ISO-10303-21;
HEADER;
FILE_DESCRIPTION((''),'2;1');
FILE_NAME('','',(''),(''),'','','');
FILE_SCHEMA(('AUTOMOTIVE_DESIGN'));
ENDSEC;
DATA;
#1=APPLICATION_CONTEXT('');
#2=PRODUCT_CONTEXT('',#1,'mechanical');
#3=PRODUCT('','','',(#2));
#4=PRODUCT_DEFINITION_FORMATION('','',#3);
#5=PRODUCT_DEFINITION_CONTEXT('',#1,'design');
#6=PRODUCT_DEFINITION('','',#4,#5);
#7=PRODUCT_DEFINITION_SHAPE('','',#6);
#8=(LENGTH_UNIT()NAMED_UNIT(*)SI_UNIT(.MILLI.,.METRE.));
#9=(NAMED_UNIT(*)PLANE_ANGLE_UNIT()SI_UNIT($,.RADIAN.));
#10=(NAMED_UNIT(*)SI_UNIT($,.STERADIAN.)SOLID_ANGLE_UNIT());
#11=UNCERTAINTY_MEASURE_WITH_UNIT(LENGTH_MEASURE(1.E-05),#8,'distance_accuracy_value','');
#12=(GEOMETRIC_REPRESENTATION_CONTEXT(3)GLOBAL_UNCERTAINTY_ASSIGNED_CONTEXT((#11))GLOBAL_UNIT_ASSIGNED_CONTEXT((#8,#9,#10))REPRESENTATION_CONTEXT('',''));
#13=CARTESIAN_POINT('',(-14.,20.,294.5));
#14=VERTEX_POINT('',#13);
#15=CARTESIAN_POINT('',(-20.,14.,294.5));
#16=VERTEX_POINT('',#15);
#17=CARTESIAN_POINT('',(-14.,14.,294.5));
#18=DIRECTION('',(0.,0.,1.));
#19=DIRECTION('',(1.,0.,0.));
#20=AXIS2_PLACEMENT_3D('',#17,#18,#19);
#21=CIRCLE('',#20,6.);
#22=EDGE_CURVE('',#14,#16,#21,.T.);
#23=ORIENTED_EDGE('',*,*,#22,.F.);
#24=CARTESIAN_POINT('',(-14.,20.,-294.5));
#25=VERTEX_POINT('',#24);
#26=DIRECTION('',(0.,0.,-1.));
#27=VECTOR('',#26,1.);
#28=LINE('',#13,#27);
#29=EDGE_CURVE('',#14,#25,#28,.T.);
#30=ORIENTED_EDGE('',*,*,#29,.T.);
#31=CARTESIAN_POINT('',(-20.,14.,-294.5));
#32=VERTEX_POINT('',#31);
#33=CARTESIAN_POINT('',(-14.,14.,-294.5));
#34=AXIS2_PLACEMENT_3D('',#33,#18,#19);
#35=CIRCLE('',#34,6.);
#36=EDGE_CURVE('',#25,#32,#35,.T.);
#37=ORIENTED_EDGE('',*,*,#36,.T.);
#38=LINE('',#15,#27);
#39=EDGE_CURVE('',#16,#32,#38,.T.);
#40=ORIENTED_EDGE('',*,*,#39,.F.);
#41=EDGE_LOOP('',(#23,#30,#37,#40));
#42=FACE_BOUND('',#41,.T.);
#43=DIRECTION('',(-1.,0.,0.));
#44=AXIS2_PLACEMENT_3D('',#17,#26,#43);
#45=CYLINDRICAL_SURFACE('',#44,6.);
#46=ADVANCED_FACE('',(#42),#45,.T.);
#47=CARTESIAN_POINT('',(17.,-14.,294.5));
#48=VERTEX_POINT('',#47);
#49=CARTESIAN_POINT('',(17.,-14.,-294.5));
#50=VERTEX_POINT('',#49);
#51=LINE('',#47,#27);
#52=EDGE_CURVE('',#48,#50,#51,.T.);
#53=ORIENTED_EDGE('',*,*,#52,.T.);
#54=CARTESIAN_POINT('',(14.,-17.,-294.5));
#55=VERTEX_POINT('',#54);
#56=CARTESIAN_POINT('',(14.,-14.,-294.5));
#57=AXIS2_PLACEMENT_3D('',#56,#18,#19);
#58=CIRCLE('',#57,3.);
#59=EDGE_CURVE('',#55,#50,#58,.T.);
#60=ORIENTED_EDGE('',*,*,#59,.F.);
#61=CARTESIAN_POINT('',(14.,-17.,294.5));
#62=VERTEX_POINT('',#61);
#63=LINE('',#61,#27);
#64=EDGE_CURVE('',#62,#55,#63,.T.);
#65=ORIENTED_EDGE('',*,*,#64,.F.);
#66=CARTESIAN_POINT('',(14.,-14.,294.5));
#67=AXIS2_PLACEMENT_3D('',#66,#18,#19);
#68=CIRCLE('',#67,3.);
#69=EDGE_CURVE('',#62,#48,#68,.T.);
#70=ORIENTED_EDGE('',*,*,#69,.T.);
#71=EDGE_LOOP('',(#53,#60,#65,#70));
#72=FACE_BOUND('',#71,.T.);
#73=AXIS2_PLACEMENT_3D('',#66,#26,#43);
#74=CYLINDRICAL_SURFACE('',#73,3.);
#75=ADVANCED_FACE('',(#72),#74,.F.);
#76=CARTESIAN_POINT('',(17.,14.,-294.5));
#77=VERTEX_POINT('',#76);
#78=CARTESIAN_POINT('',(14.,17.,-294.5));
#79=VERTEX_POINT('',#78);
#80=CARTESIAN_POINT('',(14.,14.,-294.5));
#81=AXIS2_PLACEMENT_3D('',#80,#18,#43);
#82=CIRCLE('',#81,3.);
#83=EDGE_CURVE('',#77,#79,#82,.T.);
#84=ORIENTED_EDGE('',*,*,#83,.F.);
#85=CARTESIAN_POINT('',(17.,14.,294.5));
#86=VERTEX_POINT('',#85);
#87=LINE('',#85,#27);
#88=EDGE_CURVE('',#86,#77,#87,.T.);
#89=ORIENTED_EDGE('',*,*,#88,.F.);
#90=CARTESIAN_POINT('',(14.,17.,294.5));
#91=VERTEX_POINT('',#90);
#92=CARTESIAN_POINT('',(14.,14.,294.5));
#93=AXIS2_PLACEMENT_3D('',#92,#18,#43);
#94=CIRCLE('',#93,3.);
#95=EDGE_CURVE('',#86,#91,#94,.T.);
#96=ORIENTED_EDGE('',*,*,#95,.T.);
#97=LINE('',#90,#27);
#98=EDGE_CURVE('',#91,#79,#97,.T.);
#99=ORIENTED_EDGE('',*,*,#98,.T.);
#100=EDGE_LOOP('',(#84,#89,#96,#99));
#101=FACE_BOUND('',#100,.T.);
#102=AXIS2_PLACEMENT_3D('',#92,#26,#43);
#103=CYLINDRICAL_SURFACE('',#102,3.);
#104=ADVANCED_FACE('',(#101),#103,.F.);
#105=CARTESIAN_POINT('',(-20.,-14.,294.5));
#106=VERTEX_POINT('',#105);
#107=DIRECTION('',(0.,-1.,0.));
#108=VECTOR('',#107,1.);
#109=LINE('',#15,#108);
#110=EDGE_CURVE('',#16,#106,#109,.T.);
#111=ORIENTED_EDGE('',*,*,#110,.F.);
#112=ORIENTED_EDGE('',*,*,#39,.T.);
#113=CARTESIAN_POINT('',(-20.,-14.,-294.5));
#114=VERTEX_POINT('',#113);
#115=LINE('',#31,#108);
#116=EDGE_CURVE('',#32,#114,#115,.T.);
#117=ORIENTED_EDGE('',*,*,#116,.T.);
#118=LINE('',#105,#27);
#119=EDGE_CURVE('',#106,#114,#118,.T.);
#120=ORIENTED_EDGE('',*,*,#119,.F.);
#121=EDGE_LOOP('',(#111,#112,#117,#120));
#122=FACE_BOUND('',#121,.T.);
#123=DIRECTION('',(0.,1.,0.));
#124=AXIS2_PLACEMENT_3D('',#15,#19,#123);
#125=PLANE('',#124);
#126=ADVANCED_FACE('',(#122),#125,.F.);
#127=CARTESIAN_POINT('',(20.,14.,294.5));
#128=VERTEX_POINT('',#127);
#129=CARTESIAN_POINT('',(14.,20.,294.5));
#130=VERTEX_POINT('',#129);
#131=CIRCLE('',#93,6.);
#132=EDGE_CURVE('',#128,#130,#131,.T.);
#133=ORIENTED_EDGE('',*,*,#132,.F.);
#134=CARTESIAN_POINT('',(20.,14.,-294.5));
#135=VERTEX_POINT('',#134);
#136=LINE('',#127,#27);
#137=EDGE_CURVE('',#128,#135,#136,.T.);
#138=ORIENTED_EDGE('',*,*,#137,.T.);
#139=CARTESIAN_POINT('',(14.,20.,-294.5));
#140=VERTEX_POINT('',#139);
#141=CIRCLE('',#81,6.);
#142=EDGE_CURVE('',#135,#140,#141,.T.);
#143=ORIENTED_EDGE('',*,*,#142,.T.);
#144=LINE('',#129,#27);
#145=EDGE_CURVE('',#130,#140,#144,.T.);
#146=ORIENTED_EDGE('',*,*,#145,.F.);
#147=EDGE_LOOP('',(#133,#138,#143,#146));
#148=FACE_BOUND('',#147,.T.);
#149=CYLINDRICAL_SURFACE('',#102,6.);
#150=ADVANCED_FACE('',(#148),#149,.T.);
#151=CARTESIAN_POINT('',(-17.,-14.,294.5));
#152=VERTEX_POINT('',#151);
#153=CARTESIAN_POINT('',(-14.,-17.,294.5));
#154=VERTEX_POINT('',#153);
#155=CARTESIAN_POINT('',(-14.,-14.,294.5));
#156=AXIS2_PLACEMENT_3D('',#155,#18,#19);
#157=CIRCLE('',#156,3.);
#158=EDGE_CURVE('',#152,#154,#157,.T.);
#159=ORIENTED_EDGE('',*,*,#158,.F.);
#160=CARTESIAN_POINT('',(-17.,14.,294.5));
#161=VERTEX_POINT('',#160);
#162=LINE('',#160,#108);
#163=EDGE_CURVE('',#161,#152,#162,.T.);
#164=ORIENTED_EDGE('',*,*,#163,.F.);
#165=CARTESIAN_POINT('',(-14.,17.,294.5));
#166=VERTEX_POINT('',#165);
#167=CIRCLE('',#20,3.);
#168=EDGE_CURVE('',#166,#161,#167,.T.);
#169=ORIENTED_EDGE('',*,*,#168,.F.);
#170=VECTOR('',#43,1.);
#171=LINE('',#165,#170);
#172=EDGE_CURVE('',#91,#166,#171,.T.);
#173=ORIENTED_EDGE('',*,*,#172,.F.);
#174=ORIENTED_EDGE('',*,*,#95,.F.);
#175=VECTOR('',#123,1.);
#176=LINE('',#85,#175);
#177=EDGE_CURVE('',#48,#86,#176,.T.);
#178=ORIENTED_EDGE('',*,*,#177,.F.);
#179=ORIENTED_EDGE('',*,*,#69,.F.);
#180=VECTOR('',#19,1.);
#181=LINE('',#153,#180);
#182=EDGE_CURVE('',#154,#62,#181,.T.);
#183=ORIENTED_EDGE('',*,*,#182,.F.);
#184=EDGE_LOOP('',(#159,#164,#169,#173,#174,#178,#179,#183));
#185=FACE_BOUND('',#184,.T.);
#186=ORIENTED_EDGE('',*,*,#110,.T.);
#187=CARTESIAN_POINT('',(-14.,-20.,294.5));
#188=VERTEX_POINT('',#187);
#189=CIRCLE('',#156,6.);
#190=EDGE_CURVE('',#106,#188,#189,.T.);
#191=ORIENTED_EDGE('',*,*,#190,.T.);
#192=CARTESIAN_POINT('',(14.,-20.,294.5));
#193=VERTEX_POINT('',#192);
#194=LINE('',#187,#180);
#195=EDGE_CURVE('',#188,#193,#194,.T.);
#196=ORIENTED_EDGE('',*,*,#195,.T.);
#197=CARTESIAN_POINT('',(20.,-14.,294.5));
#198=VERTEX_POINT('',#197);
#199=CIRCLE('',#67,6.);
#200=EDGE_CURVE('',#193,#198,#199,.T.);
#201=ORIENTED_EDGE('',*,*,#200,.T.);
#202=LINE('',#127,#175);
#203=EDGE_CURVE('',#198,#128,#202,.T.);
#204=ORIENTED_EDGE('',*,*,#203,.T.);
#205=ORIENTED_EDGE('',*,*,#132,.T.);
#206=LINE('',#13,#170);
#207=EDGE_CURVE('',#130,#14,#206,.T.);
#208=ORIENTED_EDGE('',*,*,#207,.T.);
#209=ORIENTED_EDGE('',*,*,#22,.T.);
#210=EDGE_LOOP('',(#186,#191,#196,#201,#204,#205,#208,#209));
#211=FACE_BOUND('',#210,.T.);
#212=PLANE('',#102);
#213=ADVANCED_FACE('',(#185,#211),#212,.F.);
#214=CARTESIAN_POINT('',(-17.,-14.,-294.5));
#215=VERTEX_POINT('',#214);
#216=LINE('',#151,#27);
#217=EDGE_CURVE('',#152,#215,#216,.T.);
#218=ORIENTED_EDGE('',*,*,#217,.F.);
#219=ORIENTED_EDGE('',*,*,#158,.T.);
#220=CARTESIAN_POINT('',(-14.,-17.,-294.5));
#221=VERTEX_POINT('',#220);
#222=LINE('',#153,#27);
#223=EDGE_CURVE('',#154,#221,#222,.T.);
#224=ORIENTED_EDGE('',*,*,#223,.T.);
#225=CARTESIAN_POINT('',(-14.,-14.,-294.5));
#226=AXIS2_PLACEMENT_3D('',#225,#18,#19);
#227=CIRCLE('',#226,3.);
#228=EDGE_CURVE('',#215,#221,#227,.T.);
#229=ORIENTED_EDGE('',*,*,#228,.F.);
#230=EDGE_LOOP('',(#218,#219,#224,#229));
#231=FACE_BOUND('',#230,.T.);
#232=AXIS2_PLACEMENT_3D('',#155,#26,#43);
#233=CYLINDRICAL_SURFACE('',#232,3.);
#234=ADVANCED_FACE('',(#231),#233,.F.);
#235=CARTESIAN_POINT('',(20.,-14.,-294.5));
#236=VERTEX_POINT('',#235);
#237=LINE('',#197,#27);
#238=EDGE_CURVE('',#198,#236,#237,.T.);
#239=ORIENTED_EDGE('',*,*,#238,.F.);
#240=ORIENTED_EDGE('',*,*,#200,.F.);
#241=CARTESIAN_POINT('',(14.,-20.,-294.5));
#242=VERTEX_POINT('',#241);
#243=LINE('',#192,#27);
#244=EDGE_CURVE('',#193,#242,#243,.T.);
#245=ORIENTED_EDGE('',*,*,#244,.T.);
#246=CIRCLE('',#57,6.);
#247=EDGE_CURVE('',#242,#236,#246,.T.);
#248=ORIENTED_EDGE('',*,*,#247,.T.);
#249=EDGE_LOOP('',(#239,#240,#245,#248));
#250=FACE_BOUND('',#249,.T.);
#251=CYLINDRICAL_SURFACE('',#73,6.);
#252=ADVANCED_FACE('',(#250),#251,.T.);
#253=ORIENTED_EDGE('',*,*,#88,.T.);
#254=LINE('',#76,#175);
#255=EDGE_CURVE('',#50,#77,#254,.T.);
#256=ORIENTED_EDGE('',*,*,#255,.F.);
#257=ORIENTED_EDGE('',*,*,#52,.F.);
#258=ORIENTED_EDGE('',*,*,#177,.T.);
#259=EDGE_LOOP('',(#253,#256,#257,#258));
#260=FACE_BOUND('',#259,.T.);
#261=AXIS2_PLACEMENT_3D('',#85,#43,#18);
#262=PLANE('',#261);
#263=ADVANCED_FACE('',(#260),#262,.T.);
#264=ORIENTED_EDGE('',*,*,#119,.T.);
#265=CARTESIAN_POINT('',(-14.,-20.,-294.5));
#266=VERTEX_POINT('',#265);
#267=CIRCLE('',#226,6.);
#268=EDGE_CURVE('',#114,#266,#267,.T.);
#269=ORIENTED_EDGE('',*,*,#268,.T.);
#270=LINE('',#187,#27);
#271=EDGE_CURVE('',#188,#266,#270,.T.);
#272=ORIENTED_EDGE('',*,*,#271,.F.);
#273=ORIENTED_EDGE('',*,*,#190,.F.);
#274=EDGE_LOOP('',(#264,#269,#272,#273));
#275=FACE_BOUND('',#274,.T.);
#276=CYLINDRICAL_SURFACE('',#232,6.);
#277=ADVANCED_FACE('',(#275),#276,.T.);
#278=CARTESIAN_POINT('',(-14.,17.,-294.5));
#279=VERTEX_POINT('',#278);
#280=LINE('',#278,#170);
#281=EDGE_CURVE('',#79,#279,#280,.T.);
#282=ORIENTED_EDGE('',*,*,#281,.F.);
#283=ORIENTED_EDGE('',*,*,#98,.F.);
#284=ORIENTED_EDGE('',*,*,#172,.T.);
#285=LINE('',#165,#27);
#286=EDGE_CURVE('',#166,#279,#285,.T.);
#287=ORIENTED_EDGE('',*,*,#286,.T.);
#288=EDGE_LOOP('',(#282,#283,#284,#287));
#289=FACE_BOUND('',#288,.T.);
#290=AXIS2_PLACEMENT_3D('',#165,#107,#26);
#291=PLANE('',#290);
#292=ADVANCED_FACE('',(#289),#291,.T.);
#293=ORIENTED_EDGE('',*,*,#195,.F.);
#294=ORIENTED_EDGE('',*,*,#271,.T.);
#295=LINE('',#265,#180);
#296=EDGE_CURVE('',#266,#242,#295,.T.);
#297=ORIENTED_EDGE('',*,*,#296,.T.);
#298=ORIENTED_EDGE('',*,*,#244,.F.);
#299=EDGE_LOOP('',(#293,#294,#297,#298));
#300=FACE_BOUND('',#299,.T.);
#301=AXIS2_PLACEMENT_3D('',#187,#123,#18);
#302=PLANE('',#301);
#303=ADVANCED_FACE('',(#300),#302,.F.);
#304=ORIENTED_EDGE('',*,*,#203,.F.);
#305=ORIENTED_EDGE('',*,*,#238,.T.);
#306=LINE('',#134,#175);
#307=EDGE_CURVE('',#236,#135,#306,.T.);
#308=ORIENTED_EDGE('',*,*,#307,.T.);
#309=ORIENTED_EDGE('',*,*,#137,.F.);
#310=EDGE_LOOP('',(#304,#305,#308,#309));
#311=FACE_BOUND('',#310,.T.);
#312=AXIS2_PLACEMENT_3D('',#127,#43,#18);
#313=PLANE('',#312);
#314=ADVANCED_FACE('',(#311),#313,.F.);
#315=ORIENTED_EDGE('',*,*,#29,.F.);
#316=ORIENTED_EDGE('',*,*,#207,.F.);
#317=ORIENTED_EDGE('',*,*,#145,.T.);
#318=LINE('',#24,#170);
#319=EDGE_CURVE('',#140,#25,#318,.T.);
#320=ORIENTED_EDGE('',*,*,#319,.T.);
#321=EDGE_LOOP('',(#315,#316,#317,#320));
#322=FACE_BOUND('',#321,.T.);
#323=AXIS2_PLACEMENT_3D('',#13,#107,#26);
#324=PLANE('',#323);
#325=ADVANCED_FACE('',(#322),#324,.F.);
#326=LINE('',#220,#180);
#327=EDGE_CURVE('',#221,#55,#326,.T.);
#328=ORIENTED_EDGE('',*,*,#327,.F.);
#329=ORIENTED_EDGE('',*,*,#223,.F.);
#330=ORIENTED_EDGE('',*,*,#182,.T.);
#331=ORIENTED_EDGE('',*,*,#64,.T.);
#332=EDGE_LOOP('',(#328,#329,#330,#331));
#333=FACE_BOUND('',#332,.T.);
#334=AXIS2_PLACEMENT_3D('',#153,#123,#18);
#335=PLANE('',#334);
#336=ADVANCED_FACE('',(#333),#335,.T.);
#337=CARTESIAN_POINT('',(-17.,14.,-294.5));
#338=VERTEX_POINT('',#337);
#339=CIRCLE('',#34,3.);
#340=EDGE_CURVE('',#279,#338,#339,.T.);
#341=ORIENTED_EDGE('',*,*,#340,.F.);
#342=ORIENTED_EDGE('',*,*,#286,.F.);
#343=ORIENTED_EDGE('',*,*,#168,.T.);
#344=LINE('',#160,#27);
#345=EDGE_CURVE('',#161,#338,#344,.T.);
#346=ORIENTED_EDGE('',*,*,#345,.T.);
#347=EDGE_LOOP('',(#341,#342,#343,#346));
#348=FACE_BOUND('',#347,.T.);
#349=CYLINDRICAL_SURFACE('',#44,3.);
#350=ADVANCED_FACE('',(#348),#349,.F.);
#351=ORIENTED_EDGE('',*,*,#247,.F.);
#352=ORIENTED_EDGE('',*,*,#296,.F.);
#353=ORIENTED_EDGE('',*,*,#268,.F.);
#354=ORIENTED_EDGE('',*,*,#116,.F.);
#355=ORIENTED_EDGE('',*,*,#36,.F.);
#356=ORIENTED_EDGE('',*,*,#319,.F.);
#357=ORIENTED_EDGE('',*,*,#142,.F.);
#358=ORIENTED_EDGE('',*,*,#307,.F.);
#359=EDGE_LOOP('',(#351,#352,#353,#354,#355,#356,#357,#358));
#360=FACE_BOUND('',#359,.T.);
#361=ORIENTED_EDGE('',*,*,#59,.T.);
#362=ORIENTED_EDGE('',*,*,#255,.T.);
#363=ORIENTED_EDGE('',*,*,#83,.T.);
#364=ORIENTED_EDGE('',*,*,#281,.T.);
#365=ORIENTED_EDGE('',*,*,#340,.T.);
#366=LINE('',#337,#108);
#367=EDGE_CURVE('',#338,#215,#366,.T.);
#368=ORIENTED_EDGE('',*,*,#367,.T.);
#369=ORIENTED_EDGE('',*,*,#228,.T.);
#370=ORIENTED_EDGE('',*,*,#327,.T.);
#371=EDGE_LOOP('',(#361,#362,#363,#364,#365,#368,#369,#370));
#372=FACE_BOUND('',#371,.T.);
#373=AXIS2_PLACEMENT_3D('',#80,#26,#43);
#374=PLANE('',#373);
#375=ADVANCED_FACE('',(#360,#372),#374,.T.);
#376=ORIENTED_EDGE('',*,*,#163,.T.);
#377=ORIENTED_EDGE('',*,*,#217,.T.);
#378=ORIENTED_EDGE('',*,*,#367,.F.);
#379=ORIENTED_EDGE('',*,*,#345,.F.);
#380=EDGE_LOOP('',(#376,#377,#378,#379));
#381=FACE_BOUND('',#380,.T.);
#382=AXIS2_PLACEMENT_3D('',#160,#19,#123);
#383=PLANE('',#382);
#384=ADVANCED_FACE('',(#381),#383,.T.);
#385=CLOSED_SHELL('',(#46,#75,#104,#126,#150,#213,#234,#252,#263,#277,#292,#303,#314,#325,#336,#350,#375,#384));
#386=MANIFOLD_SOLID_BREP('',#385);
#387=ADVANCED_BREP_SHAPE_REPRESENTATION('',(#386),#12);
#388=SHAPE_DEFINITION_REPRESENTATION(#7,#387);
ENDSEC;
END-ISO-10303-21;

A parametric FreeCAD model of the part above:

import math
import FreeCAD as App
import Part
import Sketcher

V = App.Vector
Q = App.Units.Quantity

doc = App.newDocument("Part")
params = doc.addObject("Spreadsheet::Sheet", "Params")
for row, (alias, value) in enumerate([
    ("sketch1_radius", "6 mm"),
    ("sketch1_radius2", "3 mm"),
    ("sketch1_width", "28 mm"),
    ("pad1_length", "589 mm"),
], start=1):
    params.set(f"A{row}", alias)
    params.set(f"B{row}", "=" + value)
    params.setAlias(f"B{row}", alias)

body = doc.addObject("PartDesign::Body", "Body")

sketch1 = body.newObject("Sketcher::SketchObject", "Sketch")
sketch1.AttachmentSupport = (doc.getObject("XY_Plane"), [""])
sketch1.MapMode = "FlatFace"
sketch1.addGeometry([
    Part.LineSegment(V(14, 20, 0), V(-14, 20, 0)),
    Part.ArcOfCircle(Part.Circle(V(-14, 14, 0), V(0, 0, 1), 6), math.radians(90), math.radians(180)),
    Part.LineSegment(V(-20, 14, 0), V(-20, -14, 0)),
    Part.ArcOfCircle(Part.Circle(V(-14, -14, 0), V(0, 0, 1), 6), math.radians(180), math.radians(270)),
    Part.LineSegment(V(-14, -20, 0), V(14, -20, 0)),
    Part.ArcOfCircle(Part.Circle(V(14, -14, 0), V(0, 0, 1), 6), math.radians(-90), math.radians(0)),
    Part.LineSegment(V(20, -14, 0), V(20, 14, 0)),
    Part.ArcOfCircle(Part.Circle(V(14, 14, 0), V(0, 0, 1), 6), math.radians(0), math.radians(90)),
    Part.LineSegment(V(-14, 17, 0), V(14, 17, 0)),
    Part.ArcOfCircle(Part.Circle(V(14, 14, 0), V(0, 0, 1), 3), math.radians(0), math.radians(90)),
    Part.LineSegment(V(17, 14, 0), V(17, -14, 0)),
    Part.ArcOfCircle(Part.Circle(V(14, -14, 0), V(0, 0, 1), 3), math.radians(-90), math.radians(0)),
    Part.LineSegment(V(14, -17, 0), V(-14, -17, 0)),
    Part.ArcOfCircle(Part.Circle(V(-14, -14, 0), V(0, 0, 1), 3), math.radians(180), math.radians(270)),
    Part.LineSegment(V(-17, -14, 0), V(-17, 14, 0)),
    Part.ArcOfCircle(Part.Circle(V(-14, 14, 0), V(0, 0, 1), 3), math.radians(90), math.radians(180)),
], False)
sketch1.addConstraint([
    Sketcher.Constraint("Tangent", 0, 2, 1, 1),
    Sketcher.Constraint("Tangent", 1, 2, 2, 1),
    Sketcher.Constraint("Tangent", 2, 2, 3, 1),
    Sketcher.Constraint("Tangent", 3, 2, 4, 1),
    Sketcher.Constraint("Tangent", 4, 2, 5, 1),
    Sketcher.Constraint("Tangent", 5, 2, 6, 1),
    Sketcher.Constraint("Tangent", 6, 2, 7, 1),
    Sketcher.Constraint("Tangent", 7, 2, 0, 1),
    Sketcher.Constraint("Tangent", 8, 2, 9, 2),
    Sketcher.Constraint("Tangent", 9, 1, 10, 1),
    Sketcher.Constraint("Tangent", 10, 2, 11, 2),
    Sketcher.Constraint("Tangent", 11, 1, 12, 1),
    Sketcher.Constraint("Tangent", 12, 2, 13, 2),
    Sketcher.Constraint("Tangent", 13, 1, 14, 1),
    Sketcher.Constraint("Tangent", 14, 2, 15, 2),
    Sketcher.Constraint("Tangent", 15, 1, 8, 1),
    Sketcher.Constraint("Horizontal", 0),
    Sketcher.Constraint("Vertical", 2),
    Sketcher.Constraint("Horizontal", 4),
    Sketcher.Constraint("Vertical", 6),
    Sketcher.Constraint("Horizontal", 8),
    Sketcher.Constraint("Vertical", 10),
    Sketcher.Constraint("Horizontal", 12),
    Sketcher.Constraint("Vertical", 14),
    Sketcher.Constraint("Coincident", 9, 3, 7, 3),
    Sketcher.Constraint("Coincident", 11, 3, 5, 3),
    Sketcher.Constraint("Coincident", 13, 3, 3, 3),
    Sketcher.Constraint("Equal", 1, 3),
    Sketcher.Constraint("Equal", 3, 5),
    Sketcher.Constraint("Equal", 5, 7),
    Sketcher.Constraint("Equal", 13, 15),
    Sketcher.Constraint("Symmetric", 1, 3, 5, 3, -1, 1),
    Sketcher.Constraint("Equal", 12, 2),
    Sketcher.Constraint("Radius", 1, Q("6 mm")),
    Sketcher.Constraint("Radius", 9, Q("3 mm")),
    Sketcher.Constraint("DistanceX", 0, 2, 0, 1, Q("28 mm")),
])
sketch1.setExpression("Constraints[33]", "Params.sketch1_radius")
sketch1.setExpression("Constraints[34]", "Params.sketch1_radius2")
sketch1.setExpression("Constraints[35]", "Params.sketch1_width")
pad1 = body.newObject("PartDesign::Pad", "Pad")
pad1.Profile = sketch1
pad1.setExpression("Length", "Params.pad1_length")
pad1.Midplane = True

doc.recompute()
